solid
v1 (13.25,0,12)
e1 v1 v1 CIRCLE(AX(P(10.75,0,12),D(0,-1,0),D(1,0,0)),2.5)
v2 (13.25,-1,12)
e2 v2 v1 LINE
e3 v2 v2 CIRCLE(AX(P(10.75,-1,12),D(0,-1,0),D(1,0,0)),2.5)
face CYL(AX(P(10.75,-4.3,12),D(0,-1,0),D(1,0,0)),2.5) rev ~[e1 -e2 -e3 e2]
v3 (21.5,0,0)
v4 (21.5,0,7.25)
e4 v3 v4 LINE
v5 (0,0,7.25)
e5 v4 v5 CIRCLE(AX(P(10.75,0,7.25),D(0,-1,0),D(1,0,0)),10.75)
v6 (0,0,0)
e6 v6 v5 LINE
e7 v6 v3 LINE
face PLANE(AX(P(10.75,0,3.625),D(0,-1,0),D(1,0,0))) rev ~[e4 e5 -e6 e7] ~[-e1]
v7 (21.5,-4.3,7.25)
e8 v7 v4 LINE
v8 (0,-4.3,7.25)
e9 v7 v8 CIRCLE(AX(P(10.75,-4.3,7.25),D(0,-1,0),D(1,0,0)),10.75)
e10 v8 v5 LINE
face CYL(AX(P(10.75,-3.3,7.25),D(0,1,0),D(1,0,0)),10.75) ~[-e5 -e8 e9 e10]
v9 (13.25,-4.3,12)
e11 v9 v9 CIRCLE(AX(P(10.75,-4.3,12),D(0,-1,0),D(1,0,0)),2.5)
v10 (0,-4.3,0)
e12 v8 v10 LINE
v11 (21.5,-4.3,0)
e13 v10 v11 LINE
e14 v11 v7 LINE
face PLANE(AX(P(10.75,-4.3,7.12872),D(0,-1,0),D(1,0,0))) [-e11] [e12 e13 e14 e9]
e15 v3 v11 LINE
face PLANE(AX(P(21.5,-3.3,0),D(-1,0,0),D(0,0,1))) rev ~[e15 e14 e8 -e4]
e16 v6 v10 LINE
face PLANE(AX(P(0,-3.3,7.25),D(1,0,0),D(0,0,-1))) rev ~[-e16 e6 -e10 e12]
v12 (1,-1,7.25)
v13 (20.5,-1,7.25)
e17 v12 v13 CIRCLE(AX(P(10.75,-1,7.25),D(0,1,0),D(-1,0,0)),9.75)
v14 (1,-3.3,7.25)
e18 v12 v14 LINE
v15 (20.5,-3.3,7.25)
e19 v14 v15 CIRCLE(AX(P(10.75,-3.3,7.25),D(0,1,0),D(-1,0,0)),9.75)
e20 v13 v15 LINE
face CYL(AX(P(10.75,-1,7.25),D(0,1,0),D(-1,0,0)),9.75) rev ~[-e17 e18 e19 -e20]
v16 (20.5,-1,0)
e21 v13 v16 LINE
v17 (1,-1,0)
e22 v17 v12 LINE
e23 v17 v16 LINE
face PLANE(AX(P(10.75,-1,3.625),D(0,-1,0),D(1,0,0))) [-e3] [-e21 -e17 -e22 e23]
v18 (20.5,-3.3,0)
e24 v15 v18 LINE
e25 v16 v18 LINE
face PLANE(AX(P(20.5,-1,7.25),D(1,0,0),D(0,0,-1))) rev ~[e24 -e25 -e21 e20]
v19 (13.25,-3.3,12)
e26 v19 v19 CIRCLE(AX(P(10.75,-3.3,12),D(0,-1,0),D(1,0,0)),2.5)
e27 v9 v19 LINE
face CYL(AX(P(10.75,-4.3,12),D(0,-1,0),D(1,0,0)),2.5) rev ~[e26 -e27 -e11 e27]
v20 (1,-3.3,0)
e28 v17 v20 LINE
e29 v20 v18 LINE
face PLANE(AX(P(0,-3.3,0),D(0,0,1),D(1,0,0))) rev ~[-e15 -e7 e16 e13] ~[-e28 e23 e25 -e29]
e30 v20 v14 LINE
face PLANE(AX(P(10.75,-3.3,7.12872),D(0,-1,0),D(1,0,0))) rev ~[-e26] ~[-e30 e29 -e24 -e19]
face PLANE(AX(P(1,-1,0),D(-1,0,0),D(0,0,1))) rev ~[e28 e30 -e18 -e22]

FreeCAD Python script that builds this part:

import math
import FreeCAD as App
import Part
import Sketcher

V = App.Vector

doc = App.newDocument("Part")
params = doc.addObject("Spreadsheet::Sheet", "Params")
for row, (alias, value) in enumerate([
    ("sketch1_radius", "10.75 mm"),
    ("sketch1_height", "7.25 mm"),
    ("pad1_length", "1 mm"),
    ("sketch2_width", "1 mm"),
    ("sketch2_radius", "10.75 mm"),
    ("sketch2_height", "7.25 mm"),
    ("pad2_length", "2.3 mm"),
    ("sketch3_radius", "10.75 mm"),
    ("sketch3_height", "7.25 mm"),
    ("pad3_length", "1 mm"),
    ("sketch4_diameter", "5 mm"),
], start=1):
    params.set(f"A{row}", alias)
    params.set(f"B{row}", "=" + value)
    params.setAlias(f"B{row}", alias)

body = doc.addObject("PartDesign::Body", "Body")

# Sketch on XZ plane
sketch1 = doc.addObject("Sketcher::SketchObject", "Sketch")
body.addObject(sketch1)
sketch1.AttachmentSupport = (doc.XZ_Plane, [""])
sketch1.MapMode = "FlatFace"
sketch1.addGeometry(Part.LineSegment(V(0, 7, 0), V(0, 0, 0)), False)
sketch1.addGeometry(Part.LineSegment(V(0, 0, 0), V(22, 0, 0)), False)
sketch1.addGeometry(Part.LineSegment(V(22, 0, 0), V(22, 7, 0)), False)
sketch1.addGeometry(Part.ArcOfCircle(Part.Circle(V(11, 7, 0), V(0, 0, 1), 11), math.radians(0), math.radians(180)), False)
sketch1.addConstraint(Sketcher.Constraint("Coincident", 0, 2, 1, 1))
sketch1.addConstraint(Sketcher.Constraint("Coincident", 1, 2, 2, 1))
sketch1.addConstraint(Sketcher.Constraint("Tangent", 2, 2, 3, 1))
sketch1.addConstraint(Sketcher.Constraint("Tangent", 3, 2, 0, 1))
sketch1.addConstraint(Sketcher.Constraint("Vertical", 0))
sketch1.addConstraint(Sketcher.Constraint("Horizontal", 1))
sketch1.addConstraint(Sketcher.Constraint("Vertical", 2))
sketch1.addConstraint(Sketcher.Constraint("Coincident", 0, 2, -1, 1))
sketch1.addConstraint(Sketcher.Constraint("Radius", 3, 10.75))
sketch1.addConstraint(Sketcher.Constraint("DistanceY", 0, 2, 0, 1, 7.25))
sketch1.setExpression("Constraints[8]", "Params.sketch1_radius")
sketch1.setExpression("Constraints[9]", "Params.sketch1_height")
pad1 = doc.addObject("PartDesign::Pad", "Pad")
body.addObject(pad1)
pad1.Profile = sketch1
pad1.setExpression("Length", "Params.pad1_length")

# Sketch on XZ plane
sketch2 = doc.addObject("Sketcher::SketchObject", "Sketch001")
body.addObject(sketch2)
sketch2.AttachmentSupport = (doc.XZ_Plane, [""])
sketch2.MapMode = "FlatFace"
sketch2.AttachmentOffset = App.Placement(V(0, 0, 1), App.Rotation())
sketch2.addGeometry(Part.LineSegment(V(20.5, 7.2, 0), V(20.5, 0, 0)), False)
sketch2.addGeometry(Part.LineSegment(V(20.5, 0, 0), V(21.5, 0, 0)), False)
sketch2.addGeometry(Part.LineSegment(V(21.5, 0, 0), V(21.5, 7.2, 0)), False)
sketch2.addGeometry(Part.ArcOfCircle(Part.Circle(V(10.8, 7.2, 0), V(0, 0, 1), 10.8), math.radians(0), math.radians(180)), False)
sketch2.addGeometry(Part.LineSegment(V(0, 7.2, 0), V(0, 0, 0)), False)
sketch2.addGeometry(Part.LineSegment(V(0, 0, 0), V(1, 0, 0)), False)
sketch2.addGeometry(Part.LineSegment(V(1, 0, 0), V(1, 7.2, 0)), False)
sketch2.addGeometry(Part.ArcOfCircle(Part.Circle(V(10.8, 7.2, 0), V(0, 0, 1), 9.8), math.radians(0), math.radians(180)), False)
sketch2.addConstraint(Sketcher.Constraint("Coincident", 0, 2, 1, 1))
sketch2.addConstraint(Sketcher.Constraint("Coincident", 1, 2, 2, 1))
sketch2.addConstraint(Sketcher.Constraint("Tangent", 2, 2, 3, 1))
sketch2.addConstraint(Sketcher.Constraint("Tangent", 3, 2, 4, 1))
sketch2.addConstraint(Sketcher.Constraint("Coincident", 4, 2, 5, 1))
sketch2.addConstraint(Sketcher.Constraint("Coincident", 5, 2, 6, 1))
sketch2.addConstraint(Sketcher.Constraint("Tangent", 6, 2, 7, 2))
sketch2.addConstraint(Sketcher.Constraint("Tangent", 7, 1, 0, 1))
sketch2.addConstraint(Sketcher.Constraint("Vertical", 0))
sketch2.addConstraint(Sketcher.Constraint("Horizontal", 1))
sketch2.addConstraint(Sketcher.Constraint("Vertical", 2))
sketch2.addConstraint(Sketcher.Constraint("Vertical", 4))
sketch2.addConstraint(Sketcher.Constraint("Horizontal", 5))
sketch2.addConstraint(Sketcher.Constraint("Vertical", 6))
sketch2.addConstraint(Sketcher.Constraint("Coincident", 4, 2, -1, 1))
sketch2.addConstraint(Sketcher.Constraint("Coincident", 7, 3, 3, 3))
sketch2.addConstraint(Sketcher.Constraint("PointOnObject", 0, 2, -1))
sketch2.addConstraint(Sketcher.Constraint("DistanceX", 1, 1, 1, 2, 1.0))
sketch2.addConstraint(Sketcher.Constraint("Radius", 3, 10.75))
sketch2.addConstraint(Sketcher.Constraint("DistanceY", 0, 2, 0, 1, 7.25))
sketch2.setExpression("Constraints[17]", "Params.sketch2_width")
sketch2.setExpression("Constraints[18]", "Params.sketch2_radius")
sketch2.setExpression("Constraints[19]", "Params.sketch2_height")
pad2 = doc.addObject("PartDesign::Pad", "Pad001")
body.addObject(pad2)
pad2.Profile = sketch2
pad2.setExpression("Length", "Params.pad2_length")

# Sketch on XZ plane
sketch3 = doc.addObject("Sketcher::SketchObject", "Sketch002")
body.addObject(sketch3)
sketch3.AttachmentSupport = (doc.XZ_Plane, [""])
sketch3.MapMode = "FlatFace"
sketch3.AttachmentOffset = App.Placement(V(0, 0, 3.3), App.Rotation())
sketch3.addGeometry(Part.LineSegment(V(0, 7, 0), V(0, 0, 0)), False)
sketch3.addGeometry(Part.LineSegment(V(0, 0, 0), V(22, 0, 0)), False)
sketch3.addGeometry(Part.LineSegment(V(22, 0, 0), V(22, 7, 0)), False)
sketch3.addGeometry(Part.ArcOfCircle(Part.Circle(V(11, 7, 0), V(0, 0, 1), 11), math.radians(0), math.radians(180)), False)
sketch3.addConstraint(Sketcher.Constraint("Coincident", 0, 2, 1, 1))
sketch3.addConstraint(Sketcher.Constraint("Coincident", 1, 2, 2, 1))
sketch3.addConstraint(Sketcher.Constraint("Tangent", 2, 2, 3, 1))
sketch3.addConstraint(Sketcher.Constraint("Tangent", 3, 2, 0, 1))
sketch3.addConstraint(Sketcher.Constraint("Vertical", 0))
sketch3.addConstraint(Sketcher.Constraint("Horizontal", 1))
sketch3.addConstraint(Sketcher.Constraint("Vertical", 2))
sketch3.addConstraint(Sketcher.Constraint("Coincident", 0, 2, -1, 1))
sketch3.addConstraint(Sketcher.Constraint("Radius", 3, 10.75))
sketch3.addConstraint(Sketcher.Constraint("DistanceY", 0, 2, 0, 1, 7.25))
sketch3.setExpression("Constraints[8]", "Params.sketch3_radius")
sketch3.setExpression("Constraints[9]", "Params.sketch3_height")
pad3 = doc.addObject("PartDesign::Pad", "Pad002")
body.addObject(pad3)
pad3.Profile = sketch3
pad3.setExpression("Length", "Params.pad3_length")

# Sketch on XZ plane
sketch4 = doc.addObject("Sketcher::SketchObject", "Sketch003")
body.addObject(sketch4)
sketch4.AttachmentSupport = (doc.XZ_Plane, [""])
sketch4.MapMode = "FlatFace"
sketch4.AttachmentOffset = App.Placement(V(0, 0, 4.3), App.Rotation())
sketch4.addGeometry(Part.Circle(V(10.8, 12, 0), V(0, 0, 1), 2.5), False)
sketch4.addConstraint(Sketcher.Constraint("Diameter", 0, 5.0))
sketch4.addConstraint(Sketcher.Constraint("DistanceY", -1, 1, 0, 3, 12.0))
sketch4.addConstraint(Sketcher.Constraint("DistanceX", -1, 1, 0, 3, 10.75))
sketch4.setExpression("Constraints[0]", "Params.sketch4_diameter")
pocket1 = doc.addObject("PartDesign::Pocket", "Pocket")
body.addObject(pocket1)
pocket1.Profile = sketch4
pocket1.Type = "ThroughAll"

doc.recompute()
